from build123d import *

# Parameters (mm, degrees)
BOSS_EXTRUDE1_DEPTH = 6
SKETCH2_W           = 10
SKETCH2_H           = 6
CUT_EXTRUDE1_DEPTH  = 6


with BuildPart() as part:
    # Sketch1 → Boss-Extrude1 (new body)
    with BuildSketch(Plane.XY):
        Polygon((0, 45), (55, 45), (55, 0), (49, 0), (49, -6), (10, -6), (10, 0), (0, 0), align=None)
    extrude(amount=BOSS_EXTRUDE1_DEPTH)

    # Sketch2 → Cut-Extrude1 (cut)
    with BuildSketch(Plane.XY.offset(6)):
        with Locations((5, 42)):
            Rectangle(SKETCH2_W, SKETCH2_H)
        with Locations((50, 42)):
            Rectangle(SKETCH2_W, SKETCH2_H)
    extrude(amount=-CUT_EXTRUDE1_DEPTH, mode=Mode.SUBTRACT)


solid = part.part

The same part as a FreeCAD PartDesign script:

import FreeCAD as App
import Part
import Sketcher
from FreeCAD import Vector

doc = App.newDocument("Part")
body = doc.addObject("PartDesign::Body", "Body")

sketch1 = body.newObject("Sketcher::SketchObject", "Sketch")
sketch1.AttachmentSupport = (doc.getObject("XY_Plane"), [""])
sketch1.MapMode = "FlatFace"
sketch1.addGeometry(Part.LineSegment(Vector(55, 45, 0), Vector(0, 45, 0)), False)
sketch1.addGeometry(Part.LineSegment(Vector(0, 45, 0), Vector(0, 0, 0)), False)
sketch1.addGeometry(Part.LineSegment(Vector(0, 0, 0), Vector(10, 0, 0)), False)
sketch1.addGeometry(Part.LineSegment(Vector(10, 0, 0), Vector(10, -6, 0)), False)
sketch1.addGeometry(Part.LineSegment(Vector(10, -6, 0), Vector(49, -6, 0)), False)
sketch1.addGeometry(Part.LineSegment(Vector(49, -6, 0), Vector(49, 0, 0)), False)
sketch1.addGeometry(Part.LineSegment(Vector(49, 0, 0), Vector(55, 0, 0)), False)
sketch1.addGeometry(Part.LineSegment(Vector(55, 0, 0), Vector(55, 45, 0)), False)
sketch1.addConstraint(Sketcher.Constraint("Coincident", 0, 2, 1, 1))
sketch1.addConstraint(Sketcher.Constraint("Coincident", 1, 2, 2, 1))
sketch1.addConstraint(Sketcher.Constraint("Coincident", 2, 2, 3, 1))
sketch1.addConstraint(Sketcher.Constraint("Coincident", 3, 2, 4, 1))
sketch1.addConstraint(Sketcher.Constraint("Coincident", 4, 2, 5, 1))
sketch1.addConstraint(Sketcher.Constraint("Coincident", 5, 2, 6, 1))
sketch1.addConstraint(Sketcher.Constraint("Coincident", 6, 2, 7, 1))
sketch1.addConstraint(Sketcher.Constraint("Coincident", 7, 2, 0, 1))
sketch1.addConstraint(Sketcher.Constraint("Horizontal", 0))
sketch1.addConstraint(Sketcher.Constraint("Vertical", 1))
sketch1.addConstraint(Sketcher.Constraint("Horizontal", 2))
sketch1.addConstraint(Sketcher.Constraint("Vertical", 3))
sketch1.addConstraint(Sketcher.Constraint("Horizontal", 4))
sketch1.addConstraint(Sketcher.Constraint("Vertical", 5))
sketch1.addConstraint(Sketcher.Constraint("Horizontal", 6))
sketch1.addConstraint(Sketcher.Constraint("Vertical", 7))
sketch1.addConstraint(Sketcher.Constraint("Coincident", 1, 2, -1, 1))
sketch1.addConstraint(Sketcher.Constraint("PointOnObject", 5, 2, -1))
sketch1.addConstraint(Sketcher.Constraint("Equal", 6, 3))
sketch1.addConstraint(Sketcher.Constraint("DistanceX", 0, 2, 0, 1, 55.0))
sketch1.addConstraint(Sketcher.Constraint("DistanceX", 2, 1, 2, 2, 10.0))
sketch1.addConstraint(Sketcher.Constraint("DistanceX", 4, 1, 4, 2, 39.0))
sketch1.addConstraint(Sketcher.Constraint("DistanceY", 1, 2, 1, 1, 45.0))
pad1 = body.newObject("PartDesign::Pad", "Pad")
pad1.Profile = sketch1
pad1.Length = 6

sketch2 = body.newObject("Sketcher::SketchObject", "Sketch001")
sketch2.AttachmentSupport = (doc.getObject("XY_Plane"), [""])
sketch2.MapMode = "FlatFace"
sketch2.AttachmentOffset = App.Placement(Vector(0, 0, 6), App.Rotation())
sketch2.addGeometry(Part.LineSegment(Vector(0, 45, 0), Vector(0, 39, 0)), False)
sketch2.addGeometry(Part.LineSegment(Vector(0, 39, 0), Vector(10, 39, 0)), False)
sketch2.addGeometry(Part.LineSegment(Vector(10, 39, 0), Vector(10, 45, 0)), False)
sketch2.addGeometry(Part.LineSegment(Vector(10, 45, 0), Vector(0, 45, 0)), False)
sketch2.addGeometry(Part.LineSegment(Vector(45, 45, 0), Vector(45, 39, 0)), False)
sketch2.addGeometry(Part.LineSegment(Vector(45, 39, 0), Vector(55, 39, 0)), False)
sketch2.addGeometry(Part.LineSegment(Vector(55, 39, 0), Vector(55, 45, 0)), False)
sketch2.addGeometry(Part.LineSegment(Vector(55, 45, 0), Vector(45, 45, 0)), False)
sketch2.addConstraint(Sketcher.Constraint("Coincident", 0, 2, 1, 1))
sketch2.addConstraint(Sketcher.Constraint("Coincident", 1, 2, 2, 1))
sketch2.addConstraint(Sketcher.Constraint("Coincident", 2, 2, 3, 1))
sketch2.addConstraint(Sketcher.Constraint("Coincident", 3, 2, 0, 1))
sketch2.addConstraint(Sketcher.Constraint("Coincident", 4, 2, 5, 1))
sketch2.addConstraint(Sketcher.Constraint("Coincident", 5, 2, 6, 1))
sketch2.addConstraint(Sketcher.Constraint("Coincident", 6, 2, 7, 1))
sketch2.addConstraint(Sketcher.Constraint("Coincident", 7, 2, 4, 1))
sketch2.addConstraint(Sketcher.Constraint("Vertical", 0))
sketch2.addConstraint(Sketcher.Constraint("Horizontal", 1))
sketch2.addConstraint(Sketcher.Constraint("Vertical", 2))
sketch2.addConstraint(Sketcher.Constraint("Horizontal", 3))
sketch2.addConstraint(Sketcher.Constraint("Vertical", 4))
sketch2.addConstraint(Sketcher.Constraint("Horizontal", 5))
sketch2.addConstraint(Sketcher.Constraint("Vertical", 6))
sketch2.addConstraint(Sketcher.Constraint("Horizontal", 7))
sketch2.addConstraint(Sketcher.Constraint("PointOnObject", 0, 2, -2))
sketch2.addConstraint(Sketcher.Constraint("Horizontal", 1, 2, 4, 2))
sketch2.addConstraint(Sketcher.Constraint("Horizontal", 3, 2, 6, 2))
sketch2.addConstraint(Sketcher.Constraint("Equal", 3, 5))
sketch2.addConstraint(Sketcher.Constraint("DistanceX", 1, 1, 1, 2, 10.0))
sketch2.addConstraint(Sketcher.Constraint("DistanceY", 0, 2, 0, 1, 6.0))
sketch2.addConstraint(Sketcher.Constraint("DistanceY", -1, 1, 0, 2, 39.0))
sketch2.addConstraint(Sketcher.Constraint("DistanceX", -1, 1, 4, 2, 45.0))
pocket1 = body.newObject("PartDesign::Pocket", "Pocket")
pocket1.Profile = sketch2
pocket1.Length = 6

doc.recompute()
